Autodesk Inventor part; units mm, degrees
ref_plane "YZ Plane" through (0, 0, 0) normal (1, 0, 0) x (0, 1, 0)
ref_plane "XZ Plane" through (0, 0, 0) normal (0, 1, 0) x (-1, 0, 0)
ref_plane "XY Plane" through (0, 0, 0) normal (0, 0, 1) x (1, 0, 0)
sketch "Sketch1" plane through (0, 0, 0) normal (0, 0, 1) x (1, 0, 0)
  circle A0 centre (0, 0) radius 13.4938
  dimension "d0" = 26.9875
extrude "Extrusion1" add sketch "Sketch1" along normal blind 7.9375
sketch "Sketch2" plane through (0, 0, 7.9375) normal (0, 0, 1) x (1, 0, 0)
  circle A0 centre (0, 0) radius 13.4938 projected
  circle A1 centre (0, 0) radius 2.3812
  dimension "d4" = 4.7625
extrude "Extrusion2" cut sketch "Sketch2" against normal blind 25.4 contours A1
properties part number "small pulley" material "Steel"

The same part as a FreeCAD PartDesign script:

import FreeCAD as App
import Part
import Sketcher
from FreeCAD import Vector
Q = App.Units.Quantity

doc = App.newDocument("Part")
body = doc.addObject("PartDesign::Body", "Body")

# Sketch on XY plane
sketch1 = doc.addObject("Sketcher::SketchObject", "Sketch")
body.addObject(sketch1)
sketch1.AttachmentSupport = (doc.XY_Plane, [""])
sketch1.MapMode = "FlatFace"
sketch1.addGeometry(Part.Circle(Vector(0, 0, 0), Vector(0, 0, 1), 13), False)
sketch1.addConstraint([
    Sketcher.Constraint("Coincident", 0, 3, -1, 1),
    Sketcher.Constraint("Diameter", 0, Q("1.0625 in")),
])
pad1 = doc.addObject("PartDesign::Pad", "Pad")
body.addObject(pad1)
pad1.Profile = sketch1
pad1.Length = Q("0.3125 in")

# Sketch on XY plane
sketch2 = doc.addObject("Sketcher::SketchObject", "Sketch001")
body.addObject(sketch2)
sketch2.AttachmentSupport = (doc.XY_Plane, [""])
sketch2.MapMode = "FlatFace"
sketch2.AttachmentOffset = App.Placement(Vector(0, 0, 0.3125 * 25.4), App.Rotation())
sketch2.addGeometry(Part.Circle(Vector(0, 0, 0), Vector(0, 0, 1), 2.4), False)
sketch2.addConstraint([
    Sketcher.Constraint("Coincident", 0, 3, -1, 1),
    Sketcher.Constraint("Diameter", 0, Q("0.1875 in")),
])
pocket1 = doc.addObject("PartDesign::Pocket", "Pocket")
body.addObject(pocket1)
pocket1.Profile = sketch2
pocket1.Length = Q("1 in")

doc.recompute()
